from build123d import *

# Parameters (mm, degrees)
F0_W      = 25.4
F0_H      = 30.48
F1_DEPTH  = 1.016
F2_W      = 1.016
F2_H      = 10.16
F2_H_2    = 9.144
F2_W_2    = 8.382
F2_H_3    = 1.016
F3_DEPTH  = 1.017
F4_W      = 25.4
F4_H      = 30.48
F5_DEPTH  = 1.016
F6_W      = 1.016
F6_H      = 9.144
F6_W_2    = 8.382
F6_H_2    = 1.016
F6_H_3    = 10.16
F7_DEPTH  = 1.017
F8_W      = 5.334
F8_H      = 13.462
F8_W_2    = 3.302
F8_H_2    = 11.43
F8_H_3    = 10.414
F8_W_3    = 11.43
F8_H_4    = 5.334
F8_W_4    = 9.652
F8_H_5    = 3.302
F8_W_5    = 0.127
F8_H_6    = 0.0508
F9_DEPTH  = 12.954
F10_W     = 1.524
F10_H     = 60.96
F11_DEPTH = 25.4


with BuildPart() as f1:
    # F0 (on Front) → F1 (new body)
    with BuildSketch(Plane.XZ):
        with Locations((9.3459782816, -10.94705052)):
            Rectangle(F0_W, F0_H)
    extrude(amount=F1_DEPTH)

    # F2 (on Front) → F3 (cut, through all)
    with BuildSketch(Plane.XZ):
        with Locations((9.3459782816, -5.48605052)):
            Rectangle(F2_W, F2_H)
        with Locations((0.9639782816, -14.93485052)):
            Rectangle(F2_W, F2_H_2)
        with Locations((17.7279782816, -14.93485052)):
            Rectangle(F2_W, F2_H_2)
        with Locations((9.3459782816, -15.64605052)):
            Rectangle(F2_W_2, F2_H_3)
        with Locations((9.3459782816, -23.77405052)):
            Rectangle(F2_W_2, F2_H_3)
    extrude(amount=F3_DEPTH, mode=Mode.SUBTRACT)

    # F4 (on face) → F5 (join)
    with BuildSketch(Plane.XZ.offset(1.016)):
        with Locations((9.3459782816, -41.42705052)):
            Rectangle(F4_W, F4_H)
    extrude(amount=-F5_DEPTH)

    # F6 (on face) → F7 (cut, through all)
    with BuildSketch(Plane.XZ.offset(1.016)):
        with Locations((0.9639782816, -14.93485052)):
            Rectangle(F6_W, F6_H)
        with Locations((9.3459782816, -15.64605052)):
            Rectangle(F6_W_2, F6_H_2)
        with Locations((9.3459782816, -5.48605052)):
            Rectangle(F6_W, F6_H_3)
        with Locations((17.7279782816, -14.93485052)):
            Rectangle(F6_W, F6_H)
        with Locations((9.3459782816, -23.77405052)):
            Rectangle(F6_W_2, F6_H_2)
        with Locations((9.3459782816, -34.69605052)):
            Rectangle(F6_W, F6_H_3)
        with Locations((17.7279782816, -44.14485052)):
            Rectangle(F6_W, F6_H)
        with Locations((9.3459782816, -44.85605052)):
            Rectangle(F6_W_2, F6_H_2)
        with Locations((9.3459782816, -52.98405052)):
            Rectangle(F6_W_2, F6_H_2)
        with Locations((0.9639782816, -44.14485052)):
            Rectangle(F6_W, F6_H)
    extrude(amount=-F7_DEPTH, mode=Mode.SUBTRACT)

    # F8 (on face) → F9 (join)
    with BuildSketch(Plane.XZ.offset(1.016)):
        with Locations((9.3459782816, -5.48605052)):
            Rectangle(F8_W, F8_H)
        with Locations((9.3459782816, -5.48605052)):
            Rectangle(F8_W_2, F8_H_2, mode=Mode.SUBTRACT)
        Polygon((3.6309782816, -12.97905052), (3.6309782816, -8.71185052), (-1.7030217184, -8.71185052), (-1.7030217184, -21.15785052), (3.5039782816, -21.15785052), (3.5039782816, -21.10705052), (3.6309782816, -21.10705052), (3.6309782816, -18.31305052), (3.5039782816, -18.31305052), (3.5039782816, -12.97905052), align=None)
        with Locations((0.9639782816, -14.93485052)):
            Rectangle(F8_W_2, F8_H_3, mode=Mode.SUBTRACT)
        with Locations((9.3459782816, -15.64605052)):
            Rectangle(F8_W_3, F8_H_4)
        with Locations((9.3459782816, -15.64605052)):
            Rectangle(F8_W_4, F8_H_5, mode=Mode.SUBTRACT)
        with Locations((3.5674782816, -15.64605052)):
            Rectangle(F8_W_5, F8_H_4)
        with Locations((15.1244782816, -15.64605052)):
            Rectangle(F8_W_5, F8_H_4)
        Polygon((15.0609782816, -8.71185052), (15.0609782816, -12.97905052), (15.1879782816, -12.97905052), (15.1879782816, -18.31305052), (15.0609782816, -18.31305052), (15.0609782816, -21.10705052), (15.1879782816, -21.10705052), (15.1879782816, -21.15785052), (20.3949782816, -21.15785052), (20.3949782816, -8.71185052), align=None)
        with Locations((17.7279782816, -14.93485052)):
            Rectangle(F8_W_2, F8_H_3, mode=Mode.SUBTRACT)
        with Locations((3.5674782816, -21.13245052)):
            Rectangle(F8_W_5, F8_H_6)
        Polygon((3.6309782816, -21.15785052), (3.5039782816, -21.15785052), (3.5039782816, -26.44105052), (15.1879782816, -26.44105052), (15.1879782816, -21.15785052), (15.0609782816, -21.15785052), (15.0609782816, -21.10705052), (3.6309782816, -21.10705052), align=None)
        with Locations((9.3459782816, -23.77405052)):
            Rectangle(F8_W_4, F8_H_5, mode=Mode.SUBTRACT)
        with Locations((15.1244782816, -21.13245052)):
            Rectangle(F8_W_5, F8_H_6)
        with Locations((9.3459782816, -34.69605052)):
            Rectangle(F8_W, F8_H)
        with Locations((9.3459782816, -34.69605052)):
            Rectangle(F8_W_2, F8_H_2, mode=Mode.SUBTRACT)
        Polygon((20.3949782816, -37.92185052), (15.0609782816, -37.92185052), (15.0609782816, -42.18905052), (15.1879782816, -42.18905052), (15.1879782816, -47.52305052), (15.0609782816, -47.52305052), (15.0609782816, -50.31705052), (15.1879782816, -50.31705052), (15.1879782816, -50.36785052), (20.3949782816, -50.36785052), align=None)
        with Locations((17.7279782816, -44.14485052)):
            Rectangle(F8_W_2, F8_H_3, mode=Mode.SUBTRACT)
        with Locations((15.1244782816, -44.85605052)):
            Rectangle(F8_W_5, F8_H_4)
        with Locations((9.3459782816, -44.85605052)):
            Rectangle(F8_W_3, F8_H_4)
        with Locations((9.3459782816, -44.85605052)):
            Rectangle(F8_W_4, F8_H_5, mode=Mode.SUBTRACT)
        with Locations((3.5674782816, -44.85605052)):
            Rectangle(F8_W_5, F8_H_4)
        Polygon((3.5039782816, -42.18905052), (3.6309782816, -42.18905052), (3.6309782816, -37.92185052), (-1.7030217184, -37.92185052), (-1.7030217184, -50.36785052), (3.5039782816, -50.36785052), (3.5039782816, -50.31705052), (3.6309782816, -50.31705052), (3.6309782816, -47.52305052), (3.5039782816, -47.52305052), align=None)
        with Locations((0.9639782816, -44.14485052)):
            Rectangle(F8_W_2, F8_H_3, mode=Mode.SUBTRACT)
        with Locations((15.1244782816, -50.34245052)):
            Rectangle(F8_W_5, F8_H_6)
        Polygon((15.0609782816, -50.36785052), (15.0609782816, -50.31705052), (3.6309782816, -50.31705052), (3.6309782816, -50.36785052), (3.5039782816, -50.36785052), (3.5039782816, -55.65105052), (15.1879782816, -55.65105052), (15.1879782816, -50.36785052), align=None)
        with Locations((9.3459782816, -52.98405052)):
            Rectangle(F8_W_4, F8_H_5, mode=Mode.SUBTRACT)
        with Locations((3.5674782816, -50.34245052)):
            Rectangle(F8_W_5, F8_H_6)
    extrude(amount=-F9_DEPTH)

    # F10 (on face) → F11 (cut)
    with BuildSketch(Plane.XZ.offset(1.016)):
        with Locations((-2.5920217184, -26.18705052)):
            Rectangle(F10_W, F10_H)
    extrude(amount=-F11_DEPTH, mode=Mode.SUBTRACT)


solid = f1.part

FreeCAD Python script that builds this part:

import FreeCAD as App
import Part
import Sketcher

V = App.Vector
Q = App.Units.Quantity

doc = App.newDocument("Part")
params = doc.addObject("Spreadsheet::Sheet", "Params")
for row, (alias, value) in enumerate([
    ("sketch1_width", "1 in"),
    ("sketch1_height", "1.2 in"),
    ("pad1_length", "0.04 in"),
    ("sketch2_height", "0.4 in"),
    ("sketch2_width", "0.04 in"),
    ("sketch2_width2", "0.33 in"),
    ("sketch2_height2", "0.36 in"),
    ("sketch3_width", "1 in"),
    ("sketch3_height", "1.2 in"),
    ("pad2_length", "0.04 in"),
    ("sketch4_height", "0.4 in"),
    ("sketch4_width", "0.04 in"),
    ("sketch4_width2", "0.33 in"),
    ("sketch4_height2", "0.36 in"),
    ("sketch5_width", "0.21 in"),
    ("sketch5_width2", "0.13 in"),
    ("sketch5_width3", "0.46 in"),
    ("sketch5_width4", "0.45 in"),
    ("sketch5_width5", "0.38 in"),
    ("pad3_length", "0.51 in"),
    ("sketch6_height", "2.4 in"),
    ("sketch6_width", "0.06 in"),
    ("pocket3_length", "1 in"),
], start=1):
    params.set(f"A{row}", alias)
    params.set(f"B{row}", "=" + value)
    params.setAlias(f"B{row}", alias)

body = doc.addObject("PartDesign::Body", "Body")

# Sketch on XZ plane
sketch1 = body.newObject("Sketcher::SketchObject", "Sketch")
sketch1.AttachmentSupport = (doc.getObject("XZ_Plane"), [""])
sketch1.MapMode = "FlatFace"
sketch1.addGeometry([
    Part.LineSegment(V(-3.354022, 4.292949, 0), V(-3.354022, -26.187051, 0)),
    Part.LineSegment(V(-3.354022, -26.187051, 0), V(22.045978, -26.187051, 0)),
    Part.LineSegment(V(22.045978, -26.187051, 0), V(22.045978, 4.292949, 0)),
    Part.LineSegment(V(22.045978, 4.292949, 0), V(-3.354022, 4.292949, 0)),
], False)
sketch1.addConstraint([
    Sketcher.Constraint("Coincident", 0, 2, 1, 1),
    Sketcher.Constraint("Coincident", 1, 2, 2, 1),
    Sketcher.Constraint("Coincident", 2, 2, 3, 1),
    Sketcher.Constraint("Coincident", 3, 2, 0, 1),
    Sketcher.Constraint("Vertical", 0),
    Sketcher.Constraint("Horizontal", 1),
    Sketcher.Constraint("Vertical", 2),
    Sketcher.Constraint("Horizontal", 3),
    Sketcher.Constraint("DistanceX", 1, 1, 1, 2, Q("1 in")),
    Sketcher.Constraint("DistanceY", 0, 2, 0, 1, Q("1.2 in")),
    Sketcher.Constraint("DistanceX", 0, 2, -1, 1, 3.354022),
    Sketcher.Constraint("DistanceY", 0, 2, -1, 1, 26.187051),
])
sketch1.setExpression("Constraints[8]", "Params.sketch1_width")
sketch1.setExpression("Constraints[9]", "Params.sketch1_height")
pad1 = body.newObject("PartDesign::Pad", "Pad")
pad1.Profile = sketch1
pad1.setExpression("Length", "Params.pad1_length")

# Sketch on XZ plane
sketch2 = body.newObject("Sketcher::SketchObject", "Sketch001")
sketch2.AttachmentSupport = (doc.getObject("XZ_Plane"), [""])
sketch2.MapMode = "FlatFace"
sketch2.addGeometry([
    Part.LineSegment(V(8.837978, -0.406051, 0), V(8.837978, -10.566051, 0)),  # 0
    Part.LineSegment(V(8.837978, -10.566051, 0), V(9.853978, -10.566051, 0)),  # 1
    Part.LineSegment(V(9.853978, -10.566051, 0), V(9.853978, -0.406051, 0)),  # 2
    Part.LineSegment(V(9.853978, -0.406051, 0), V(8.837978, -0.406051, 0)),  # 3
    Part.LineSegment(V(0.455978, -10.362851, 0), V(0.455978, -19.506851, 0)),  # 4
    Part.LineSegment(V(0.455978, -19.506851, 0), V(1.471978, -19.506851, 0)),  # 5
    Part.LineSegment(V(1.471978, -19.506851, 0), V(1.471978, -10.362851, 0)),  # 6
    Part.LineSegment(V(1.471978, -10.362851, 0), V(0.455978, -10.362851, 0)),  # 7
    Part.LineSegment(V(17.219978, -10.362851, 0), V(17.219978, -19.506851, 0)),  # 8
    Part.LineSegment(V(17.219978, -19.506851, 0), V(18.235978, -19.506851, 0)),  # 9
    Part.LineSegment(V(18.235978, -19.506851, 0), V(18.235978, -10.362851, 0)),  # 10
    Part.LineSegment(V(18.235978, -10.362851, 0), V(17.219978, -10.362851, 0)),  # 11
    Part.LineSegment(V(5.154978, -15.138051, 0), V(5.154978, -16.154051, 0)),  # 12
    Part.LineSegment(V(5.154978, -16.154051, 0), V(13.536978, -16.154051, 0)),  # 13
    Part.LineSegment(V(13.536978, -16.154051, 0), V(13.536978, -15.138051, 0)),  # 14
    Part.LineSegment(V(13.536978, -15.138051, 0), V(5.154978, -15.138051, 0)),  # 15
    Part.LineSegment(V(5.154978, -23.266051, 0), V(5.154978, -24.282051, 0)),  # 16
    Part.LineSegment(V(5.154978, -24.282051, 0), V(13.536978, -24.282051, 0)),  # 17
    Part.LineSegment(V(13.536978, -24.282051, 0), V(13.536978, -23.266051, 0)),  # 18
    Part.LineSegment(V(13.536978, -23.266051, 0), V(5.154978, -23.266051, 0)),  # 19
], False)
sketch2.addConstraint([
    Sketcher.Constraint("Coincident", 0, 2, 1, 1),
    Sketcher.Constraint("Coincident", 1, 2, 2, 1),
    Sketcher.Constraint("Coincident", 2, 2, 3, 1),
    Sketcher.Constraint("Coincident", 3, 2, 0, 1),
    Sketcher.Constraint("Coincident", 4, 2, 5, 1),
    Sketcher.Constraint("Coincident", 5, 2, 6, 1),
    Sketcher.Constraint("Coincident", 6, 2, 7, 1),
    Sketcher.Constraint("Coincident", 7, 2, 4, 1),
    Sketcher.Constraint("Coincident", 8, 2, 9, 1),
    Sketcher.Constraint("Coincident", 9, 2, 10, 1),
    Sketcher.Constraint("Coincident", 10, 2, 11, 1),
    Sketcher.Constraint("Coincident", 11, 2, 8, 1),
    Sketcher.Constraint("Coincident", 12, 2, 13, 1),
    Sketcher.Constraint("Coincident", 13, 2, 14, 1),
    Sketcher.Constraint("Coincident", 14, 2, 15, 1),
    Sketcher.Constraint("Coincident", 15, 2, 12, 1),
    Sketcher.Constraint("Coincident", 16, 2, 17, 1),
    Sketcher.Constraint("Coincident", 17, 2, 18, 1),
    Sketcher.Constraint("Coincident", 18, 2, 19, 1),
    Sketcher.Constraint("Coincident", 19, 2, 16, 1),
    Sketcher.Constraint("Vertical", 0),
    Sketcher.Constraint("Horizontal", 1),
    Sketcher.Constraint("Vertical", 2),
    Sketcher.Constraint("Horizontal", 3),
    Sketcher.Constraint("Vertical", 4),
    Sketcher.Constraint("Horizontal", 5),
    Sketcher.Constraint("Vertical", 6),
    Sketcher.Constraint("Horizontal", 7),
    Sketcher.Constraint("Vertical", 8),
    Sketcher.Constraint("Horizontal", 9),
    Sketcher.Constraint("Vertical", 10),
    Sketcher.Constraint("Horizontal", 11),
    Sketcher.Constraint("Vertical", 12),
    Sketcher.Constraint("Horizontal", 13),
    Sketcher.Constraint("Vertical", 14),
    Sketcher.Constraint("Horizontal", 15),
    Sketcher.Constraint("Vertical", 16),
    Sketcher.Constraint("Horizontal", 17),
    Sketcher.Constraint("Vertical", 18),
    Sketcher.Constraint("Horizontal", 19),
    Sketcher.Constraint("Horizontal", 5, 2, 8, 2),
    Sketcher.Constraint("Horizontal", 7, 2, 10, 2),
    Sketcher.Constraint("Vertical", 15, 2, 16, 2),
    Sketcher.Constraint("Vertical", 14, 2, 17, 2),
    Sketcher.Constraint("Equal", 3, 5),
    Sketcher.Constraint("Equal", 7, 9),
    Sketcher.Constraint("Equal", 11, 12),
    Sketcher.Constraint("Equal", 14, 16),
    Sketcher.Constraint("DistanceY", 0, 2, 0, 1, Q("0.4 in")),
    Sketcher.Constraint("DistanceX", 1, 1, 1, 2, Q("0.04 in")),
    Sketcher.Constraint("DistanceX", 13, 1, 13, 2, Q("0.33 in")),
    Sketcher.Constraint("DistanceY", 4, 2, 4, 1, Q("0.36 in")),
    Sketcher.Constraint("DistanceX", 4, 2, 9, 2, Q("0.7 in")),
    Sketcher.Constraint("DistanceX", 4, 2, 0, 2, Q("0.33 in")),
    Sketcher.Constraint("DistanceY", 12, 2, 0, 2, Q("0.22 in")),
    Sketcher.Constraint("DistanceY", 16, 2, 12, 2, Q("0.32 in")),
    Sketcher.Constraint("DistanceY", 4, 2, 0, 2, Q("0.352 in")),
    Sketcher.Constraint("DistanceX", 5, 2, 12, 2, Q("0.145 in")),
    Sketcher.Constraint("DistanceX", -1, 1, 0, 2, 8.837978),
    Sketcher.Constraint("DistanceY", 0, 2, -1, 1, 10.566051),
])
sketch2.setExpression("Constraints[48]", "Params.sketch2_height")
sketch2.setExpression("Constraints[49]", "Params.sketch2_width")
sketch2.setExpression("Constraints[50]", "Params.sketch2_width2")
sketch2.setExpression("Constraints[51]", "Params.sketch2_height2")
pocket1 = body.newObject("PartDesign::Pocket", "Pocket")
pocket1.Profile = sketch2
pocket1.Type = "ThroughAll"
pocket1.Reversed = True

# Sketch on XZ plane
sketch3 = body.newObject("Sketcher::SketchObject", "Sketch002")
sketch3.AttachmentSupport = (doc.getObject("XZ_Plane"), [""])
sketch3.MapMode = "FlatFace"
sketch3.AttachmentOffset = App.Placement(V(0, 0, 0.04 * 25.4), App.Rotation())
sketch3.addGeometry([
    Part.LineSegment(V(-3.354022, -26.187051, 0), V(-3.354022, -56.667051, 0)),
    Part.LineSegment(V(-3.354022, -56.667051, 0), V(22.045978, -56.667051, 0)),
    Part.LineSegment(V(22.045978, -56.667051, 0), V(22.045978, -26.187051, 0)),
    Part.LineSegment(V(22.045978, -26.187051, 0), V(-3.354022, -26.187051, 0)),
], False)
sketch3.addConstraint([
    Sketcher.Constraint("Coincident", 0, 2, 1, 1),
    Sketcher.Constraint("Coincident", 1, 2, 2, 1),
    Sketcher.Constraint("Coincident", 2, 2, 3, 1),
    Sketcher.Constraint("Coincident", 3, 2, 0, 1),
    Sketcher.Constraint("Vertical", 0),
    Sketcher.Constraint("Horizontal", 1),
    Sketcher.Constraint("Vertical", 2),
    Sketcher.Constraint("Horizontal", 3),
    Sketcher.Constraint("DistanceX", 1, 1, 1, 2, Q("1 in")),
    Sketcher.Constraint("DistanceY", 0, 2, 0, 1, Q("1.2 in")),
    Sketcher.Constraint("DistanceX", 0, 2, -1, 1, 3.354022),
    Sketcher.Constraint("DistanceY", 0, 2, -1, 1, 56.667051),
])
sketch3.setExpression("Constraints[8]", "Params.sketch3_width")
sketch3.setExpression("Constraints[9]", "Params.sketch3_height")
pad2 = body.newObject("PartDesign::Pad", "Pad001")
pad2.Profile = sketch3
pad2.setExpression("Length", "Params.pad2_length")
pad2.Reversed = True

# Sketch on XZ plane
sketch4 = body.newObject("Sketcher::SketchObject", "Sketch003")
sketch4.AttachmentSupport = (doc.getObject("XZ_Plane"), [""])
sketch4.MapMode = "FlatFace"
sketch4.AttachmentOffset = App.Placement(V(0, 0, 0.04 * 25.4), App.Rotation())
sketch4.addGeometry([
    Part.LineSegment(V(0.455978, -10.362851, 0), V(0.455978, -19.506851, 0)),  # 0
    Part.LineSegment(V(0.455978, -19.506851, 0), V(1.471978, -19.506851, 0)),  # 1
    Part.LineSegment(V(1.471978, -19.506851, 0), V(1.471978, -10.362851, 0)),  # 2
    Part.LineSegment(V(1.471978, -10.362851, 0), V(0.455978, -10.362851, 0)),  # 3
    Part.LineSegment(V(5.154978, -15.138051, 0), V(5.154978, -16.154051, 0)),  # 4
    Part.LineSegment(V(5.154978, -16.154051, 0), V(13.536978, -16.154051, 0)),  # 5
    Part.LineSegment(V(13.536978, -16.154051, 0), V(13.536978, -15.138051, 0)),  # 6
    Part.LineSegment(V(13.536978, -15.138051, 0), V(5.154978, -15.138051, 0)),  # 7
    Part.LineSegment(V(8.837978, -0.406051, 0), V(8.837978, -10.566051, 0)),  # 8
    Part.LineSegment(V(8.837978, -10.566051, 0), V(9.853978, -10.566051, 0)),  # 9
    Part.LineSegment(V(9.853978, -10.566051, 0), V(9.853978, -0.406051, 0)),  # 10
    Part.LineSegment(V(9.853978, -0.406051, 0), V(8.837978, -0.406051, 0)),  # 11
    Part.LineSegment(V(17.219978, -10.362851, 0), V(17.219978, -19.506851, 0)),  # 12
    Part.LineSegment(V(17.219978, -19.506851, 0), V(18.235978, -19.506851, 0)),  # 13
    Part.LineSegment(V(18.235978, -19.506851, 0), V(18.235978, -10.362851, 0)),  # 14
    Part.LineSegment(V(18.235978, -10.362851, 0), V(17.219978, -10.362851, 0)),  # 15
    Part.LineSegment(V(5.154978, -23.266051, 0), V(5.154978, -24.282051, 0)),  # 16
    Part.LineSegment(V(5.154978, -24.282051, 0), V(13.536978, -24.282051, 0)),  # 17
    Part.LineSegment(V(13.536978, -24.282051, 0), V(13.536978, -23.266051, 0)),  # 18
    Part.LineSegment(V(13.536978, -23.266051, 0), V(5.154978, -23.266051, 0)),  # 19
    Part.LineSegment(V(8.837978, -29.616051, 0), V(8.837978, -39.776051, 0)),  # 20
    Part.LineSegment(V(8.837978, -39.776051, 0), V(9.853978, -39.776051, 0)),  # 21
    Part.LineSegment(V(9.853978, -39.776051, 0), V(9.853978, -29.616051, 0)),  # 22
    Part.LineSegment(V(9.853978, -29.616051, 0), V(8.837978, -29.616051, 0)),  # 23
    Part.LineSegment(V(17.219978, -39.572851, 0), V(17.219978, -48.716851, 0)),  # 24
    Part.LineSegment(V(17.219978, -48.716851, 0), V(18.235978, -48.716851, 0)),  # 25
    Part.LineSegment(V(18.235978, -48.716851, 0), V(18.235978, -39.572851, 0)),  # 26
    Part.LineSegment(V(18.235978, -39.572851, 0), V(17.219978, -39.572851, 0)),  # 27
    Part.LineSegment(V(5.154978, -44.348051, 0), V(5.154978, -45.364051, 0)),  # 28
    Part.LineSegment(V(5.154978, -45.364051, 0), V(13.536978, -45.364051, 0)),  # 29
    Part.LineSegment(V(13.536978, -45.364051, 0), V(13.536978, -44.348051, 0)),  # 30
    Part.LineSegment(V(13.536978, -44.348051, 0), V(5.154978, -44.348051, 0)),  # 31
    Part.LineSegment(V(5.154978, -52.476051, 0), V(5.154978, -53.492051, 0)),  # 32
    Part.LineSegment(V(5.154978, -53.492051, 0), V(13.536978, -53.492051, 0)),  # 33
    Part.LineSegment(V(13.536978, -53.492051, 0), V(13.536978, -52.476051, 0)),  # 34
    Part.LineSegment(V(13.536978, -52.476051, 0), V(5.154978, -52.476051, 0)),  # 35
    Part.LineSegment(V(0.455978, -39.572851, 0), V(0.455978, -48.716851, 0)),  # 36
    Part.LineSegment(V(0.455978, -48.716851, 0), V(1.471978, -48.716851, 0)),  # 37
    Part.LineSegment(V(1.471978, -48.716851, 0), V(1.471978, -39.572851, 0)),  # 38
    Part.LineSegment(V(1.471978, -39.572851, 0), V(0.455978, -39.572851, 0)),  # 39
], False)
sketch4.addConstraint([
    Sketcher.Constraint("Coincident", 0, 2, 1, 1),
    Sketcher.Constraint("Coincident", 1, 2, 2, 1),
    Sketcher.Constraint("Coincident", 2, 2, 3, 1),
    Sketcher.Constraint("Coincident", 3, 2, 0, 1),
    Sketcher.Constraint("Coincident", 4, 2, 5, 1),
    Sketcher.Constraint("Coincident", 5, 2, 6, 1),
    Sketcher.Constraint("Coincident", 6, 2, 7, 1),
    Sketcher.Constraint("Coincident", 7, 2, 4, 1),
    Sketcher.Constraint("Coincident", 8, 2, 9, 1),
    Sketcher.Constraint("Coincident", 9, 2, 10, 1),
    Sketcher.Constraint("Coincident", 10, 2, 11, 1),
    Sketcher.Constraint("Coincident", 11, 2, 8, 1),
    Sketcher.Constraint("Coincident", 12, 2, 13, 1),
    Sketcher.Constraint("Coincident", 13, 2, 14, 1),
    Sketcher.Constraint("Coincident", 14, 2, 15, 1),
    Sketcher.Constraint("Coincident", 15, 2, 12, 1),
    Sketcher.Constraint("Coincident", 16, 2, 17, 1),
    Sketcher.Constraint("Coincident", 17, 2, 18, 1),
    Sketcher.Constraint("Coincident", 18, 2, 19, 1),
    Sketcher.Constraint("Coincident", 19, 2, 16, 1),
    Sketcher.Constraint("Coincident", 20, 2, 21, 1),
    Sketcher.Constraint("Coincident", 21, 2, 22, 1),
    Sketcher.Constraint("Coincident", 22, 2, 23, 1),
    Sketcher.Constraint("Coincident", 23, 2, 20, 1),
    Sketcher.Constraint("Coincident", 24, 2, 25, 1),
    Sketcher.Constraint("Coincident", 25, 2, 26, 1),
    Sketcher.Constraint("Coincident", 26, 2, 27, 1),
    Sketcher.Constraint("Coincident", 27, 2, 24, 1),
    Sketcher.Constraint("Coincident", 28, 2, 29, 1),
    Sketcher.Constraint("Coincident", 29, 2, 30, 1),
    Sketcher.Constraint("Coincident", 30, 2, 31, 1),
    Sketcher.Constraint("Coincident", 31, 2, 28, 1),
    Sketcher.Constraint("Coincident", 32, 2, 33, 1),
    Sketcher.Constraint("Coincident", 33, 2, 34, 1),
    Sketcher.Constraint("Coincident", 34, 2, 35, 1),
    Sketcher.Constraint("Coincident", 35, 2, 32, 1),
    Sketcher.Constraint("Coincident", 36, 2, 37, 1),
    Sketcher.Constraint("Coincident", 37, 2, 38, 1),
    Sketcher.Constraint("Coincident", 38, 2, 39, 1),
    Sketcher.Constraint("Coincident", 39, 2, 36, 1),
    Sketcher.Constraint("Vertical", 0),
    Sketcher.Constraint("Horizontal", 1),
    Sketcher.Constraint("Vertical", 2),
    Sketcher.Constraint("Horizontal", 3),
    Sketcher.Constraint("Vertical", 4),
    Sketcher.Constraint("Horizontal", 5),
    Sketcher.Constraint("Vertical", 6),
    Sketcher.Constraint("Horizontal", 7),
    Sketcher.Constraint("Vertical", 8),
    Sketcher.Constraint("Horizontal", 9),
    Sketcher.Constraint("Vertical", 10),
    Sketcher.Constraint("Horizontal", 11),
    Sketcher.Constraint("Vertical", 12),
    Sketcher.Constraint("Horizontal", 13),
    Sketcher.Constraint("Vertical", 14),
    Sketcher.Constraint("Horizontal", 15),
    Sketcher.Constraint("Vertical", 16),
    Sketcher.Constraint("Horizontal", 17),
    Sketcher.Constraint("Vertical", 18),
    Sketcher.Constraint("Horizontal", 19),
    Sketcher.Constraint("Vertical", 20),
    Sketcher.Constraint("Horizontal", 21),
    Sketcher.Constraint("Vertical", 22),
    Sketcher.Constraint("Horizontal", 23),
    Sketcher.Constraint("Vertical", 24),
    Sketcher.Constraint("Horizontal", 25),
    Sketcher.Constraint("Vertical", 26),
    Sketcher.Constraint("Horizontal", 27),
    Sketcher.Constraint("Vertical", 28),
    Sketcher.Constraint("Horizontal", 29),
    Sketcher.Constraint("Vertical", 30),
    Sketcher.Constraint("Horizontal", 31),
    Sketcher.Constraint("Vertical", 32),
    Sketcher.Constraint("Horizontal", 33),
    Sketcher.Constraint("Vertical", 34),
    Sketcher.Constraint("Horizontal", 35),
    Sketcher.Constraint("Vertical", 36),
    Sketcher.Constraint("Horizontal", 37),
    Sketcher.Constraint("Vertical", 38),
    Sketcher.Constraint("Horizontal", 39),
    Sketcher.Constraint("Horizontal", 1, 2, 12, 2),
    Sketcher.Constraint("Horizontal", 3, 2, 14, 2),
    Sketcher.Constraint("Horizontal", 25, 2, 36, 2),
    Sketcher.Constraint("Horizontal", 27, 2, 38, 2),
    Sketcher.Constraint("Vertical", 7, 2, 16, 2),
    Sketcher.Constraint("Vertical", 6, 2, 17, 2),
    Sketcher.Constraint("Vertical", 11, 2, 20, 2),
    Sketcher.Constraint("Vertical", 10, 2, 21, 2),
    Sketcher.Constraint("Vertical", 15, 2, 24, 2),
    Sketcher.Constraint("Vertical", 14, 2, 25, 2),
    Sketcher.Constraint("Vertical", 19, 2, 28, 2),
    Sketcher.Constraint("Vertical", 18, 2, 29, 2),
    Sketcher.Constraint("Vertical", 31, 2, 32, 2),
    Sketcher.Constraint("Vertical", 30, 2, 33, 2),
    Sketcher.Constraint("Vertical", 3, 2, 36, 2),
    Sketcher.Constraint("Vertical", 2, 2, 37, 2),
    Sketcher.Constraint("Equal", 3, 9),
    Sketcher.Constraint("Equal", 11, 13),
    Sketcher.Constraint("Equal", 39, 4),
    Sketcher.Constraint("Equal", 6, 16),
    Sketcher.Constraint("Equal", 10, 20),
    Sketcher.Constraint("Equal", 14, 24),
    Sketcher.Constraint("Equal", 18, 28),
    Sketcher.Constraint("Equal", 30, 32),
    Sketcher.Constraint("DistanceY", 8, 2, 8, 1, Q("0.4 in")),
    Sketcher.Constraint("DistanceX", 1, 1, 1, 2, Q("0.04 in")),
    Sketcher.Constraint("DistanceX", 5, 1, 5, 2, Q("0.33 in")),
    Sketcher.Constraint("DistanceY", 0, 2, 0, 1, Q("0.36 in")),
    Sketcher.Constraint("DistanceY", 7, 2, 8, 2, Q("0.18 in")),
    Sketcher.Constraint("DistanceX", 2, 2, 8, 2, Q("0.29 in")),
    Sketcher.Constraint("DistanceX", 9, 2, 12, 2, Q("0.29 in")),
    Sketcher.Constraint("DistanceY", 16, 2, 4, 2, Q("0.32 in")),
    Sketcher.Constraint("DistanceY", 20, 2, 16, 2, Q("0.61 in")),
    Sketcher.Constraint("DistanceY", 28, 2, 20, 2, Q("0.22 in")),
    Sketcher.Constraint("DistanceY", 32, 2, 28, 2, Q("0.32 in")),
    Sketcher.Constraint("DistanceX", 1, 2, 4, 2, Q("0.145 in")),
    Sketcher.Constraint("DistanceY", 1, 2, 4, 2, Q("0.132 in")),
    Sketcher.Constraint("DistanceY", 24, 2, 21, 2, Q("0.352 in")),
    Sketcher.Constraint("DistanceX", -1, 1, 0, 2, 0.455978),
    Sketcher.Constraint("DistanceY", 0, 2, -1, 1, 19.506851),
])
sketch4.setExpression("Constraints[104]", "Params.sketch4_height")
sketch4.setExpression("Constraints[105]", "Params.sketch4_width")
sketch4.setExpression("Constraints[106]", "Params.sketch4_width2")
sketch4.setExpression("Constraints[107]", "Params.sketch4_height2")
pocket2 = body.newObject("PartDesign::Pocket", "Pocket001")
pocket2.Profile = sketch4
pocket2.Type = "ThroughAll"

# Sketch on XZ plane
sketch5 = body.newObject("Sketcher::SketchObject", "Sketch004")
sketch5.AttachmentSupport = (doc.getObject("XZ_Plane"), [""])
sketch5.MapMode = "FlatFace"
sketch5.AttachmentOffset = App.Placement(V(0, 0, 0.04 * 25.4), App.Rotation())
sketch5.addGeometry([
    Part.LineSegment(V(6.678978, 1.244949, 0), V(6.678978, -12.217051, 0)),  # 0
    Part.LineSegment(V(6.678978, -12.217051, 0), V(12.012978, -12.217051, 0)),  # 1
    Part.LineSegment(V(12.012978, -12.217051, 0), V(12.012978, 1.244949, 0)),  # 2
    Part.LineSegment(V(12.012978, 1.244949, 0), V(6.678978, 1.244949, 0)),  # 3
    Part.LineSegment(V(10.996978, -11.201051, 0), V(7.694978, -11.201051, 0)),  # 4
    Part.LineSegment(V(7.694978, -11.201051, 0), V(7.694978, 0.228949, 0)),  # 5
    Part.LineSegment(V(7.694978, 0.228949, 0), V(10.996978, 0.228949, 0)),  # 6
    Part.LineSegment(V(10.996978, 0.228949, 0), V(10.996978, -11.201051, 0)),  # 7
    Part.LineSegment(V(3.503978, -26.441051, 0), V(15.187978, -26.441051, 0)),  # 8
    Part.LineSegment(V(15.187978, -26.441051, 0), V(15.187978, -21.157851, 0)),  # 9
    Part.LineSegment(V(15.187978, -21.157851, 0), V(20.394978, -21.157851, 0)),  # 10
    Part.LineSegment(V(20.394978, -21.157851, 0), V(20.394978, -8.711851, 0)),  # 11
    Part.LineSegment(V(20.394978, -8.711851, 0), V(15.060978, -8.711851, 0)),  # 12
    Part.LineSegment(V(15.060978, -8.711851, 0), V(15.060978, -12.979051, 0)),  # 13
    Part.LineSegment(V(15.060978, -12.979051, 0), V(3.630978, -12.979051, 0)),  # 14
    Part.LineSegment(V(3.630978, -12.979051, 0), V(3.630978, -8.711851, 0)),  # 15
    Part.LineSegment(V(3.630978, -8.711851, 0), V(-1.703022, -8.711851, 0)),  # 16
    Part.LineSegment(V(-1.703022, -8.711851, 0), V(-1.703022, -21.157851, 0)),  # 17
    Part.LineSegment(V(-1.703022, -21.157851, 0), V(3.503978, -21.157851, 0)),  # 18
    Part.LineSegment(V(3.503978, -21.157851, 0), V(3.503978, -26.441051, 0)),  # 19
    Part.LineSegment(V(14.171978, -25.425051, 0), V(4.519978, -25.425051, 0)),  # 20
    Part.LineSegment(V(4.519978, -25.425051, 0), V(4.519978, -22.123051, 0)),  # 21
    Part.LineSegment(V(4.519978, -22.123051, 0), V(14.171978, -22.123051, 0)),  # 22
    Part.LineSegment(V(14.171978, -22.123051, 0), V(14.171978, -25.425051, 0)),  # 23
    Part.LineSegment(V(15.060978, -18.313051, 0), V(15.060978, -21.107051, 0)),  # 24
    Part.LineSegment(V(15.060978, -21.107051, 0), V(3.630978, -21.107051, 0)),  # 25
    Part.LineSegment(V(3.630978, -21.107051, 0), V(3.630978, -18.313051, 0)),  # 26
    Part.LineSegment(V(3.630978, -18.313051, 0), V(15.060978, -18.313051, 0)),  # 27
    Part.LineSegment(V(2.614978, -20.141851, 0), V(-0.687022, -20.141851, 0)),  # 28
    Part.LineSegment(V(-0.687022, -20.141851, 0), V(-0.687022, -9.727851, 0)),  # 29
    Part.LineSegment(V(-0.687022, -9.727851, 0), V(2.614978, -9.727851, 0)),  # 30
    Part.LineSegment(V(2.614978, -9.727851, 0), V(2.614978, -20.141851, 0)),  # 31
    Part.LineSegment(V(4.519978, -17.297051, 0), V(4.519978, -13.995051, 0)),  # 32
    Part.LineSegment(V(4.519978, -13.995051, 0), V(14.171978, -13.995051, 0)),  # 33
    Part.LineSegment(V(14.171978, -13.995051, 0), V(14.171978, -17.297051, 0)),  # 34
    Part.LineSegment(V(14.171978, -17.297051, 0), V(4.519978, -17.297051, 0)),  # 35
    Part.LineSegment(V(19.378978, -20.141851, 0), V(16.076978, -20.141851, 0)),  # 36
    Part.LineSegment(V(16.076978, -20.141851, 0), V(16.076978, -9.727851, 0)),  # 37
    Part.LineSegment(V(16.076978, -9.727851, 0), V(19.378978, -9.727851, 0)),  # 38
    Part.LineSegment(V(19.378978, -9.727851, 0), V(19.378978, -20.141851, 0)),  # 39
    Part.LineSegment(V(6.678978, -27.965051, 0), V(6.678978, -41.427051, 0)),  # 40
    Part.LineSegment(V(6.678978, -41.427051, 0), V(12.012978, -41.427051, 0)),  # 41
    Part.LineSegment(V(12.012978, -41.427051, 0), V(12.012978, -27.965051, 0)),  # 42
    Part.LineSegment(V(12.012978, -27.965051, 0), V(6.678978, -27.965051, 0)),  # 43
    Part.LineSegment(V(10.996978, -40.411051, 0), V(7.694978, -40.411051, 0)),  # 44
    Part.LineSegment(V(7.694978, -40.411051, 0), V(7.694978, -28.981051, 0)),  # 45
    Part.LineSegment(V(7.694978, -28.981051, 0), V(10.996978, -28.981051, 0)),  # 46
    Part.LineSegment(V(10.996978, -28.981051, 0), V(10.996978, -40.411051, 0)),  # 47
    Part.LineSegment(V(-1.703022, -37.921851, 0), V(-1.703022, -50.367851, 0)),  # 48
    Part.LineSegment(V(-1.703022, -50.367851, 0), V(3.503978, -50.367851, 0)),  # 49
    Part.LineSegment(V(3.503978, -50.367851, 0), V(3.503978, -55.651051, 0)),  # 50
    Part.LineSegment(V(3.503978, -55.651051, 0), V(15.187978, -55.651051, 0)),  # 51
    Part.LineSegment(V(15.187978, -55.651051, 0), V(15.187978, -50.367851, 0)),  # 52
    Part.LineSegment(V(15.187978, -50.367851, 0), V(20.394978, -50.367851, 0)),  # 53
    Part.LineSegment(V(20.394978, -50.367851, 0), V(20.394978, -37.921851, 0)),  # 54
    Part.LineSegment(V(20.394978, -37.921851, 0), V(15.060978, -37.921851, 0)),  # 55
    Part.LineSegment(V(15.060978, -37.921851, 0), V(15.060978, -42.189051, 0)),  # 56
    Part.LineSegment(V(15.060978, -42.189051, 0), V(3.630978, -42.189051, 0)),  # 57
    Part.LineSegment(V(3.630978, -42.189051, 0), V(3.630978, -37.921851, 0)),  # 58
    Part.LineSegment(V(3.630978, -37.921851, 0), V(-1.703022, -37.921851, 0)),  # 59
    Part.LineSegment(V(14.171978, -54.635051, 0), V(4.519978, -54.635051, 0)),  # 60
    Part.LineSegment(V(4.519978, -54.635051, 0), V(4.519978, -51.333051, 0)),  # 61
    Part.LineSegment(V(4.519978, -51.333051, 0), V(14.171978, -51.333051, 0)),  # 62
    Part.LineSegment(V(14.171978, -51.333051, 0), V(14.171978, -54.635051, 0)),  # 63
    Part.LineSegment(V(15.060978, -50.317051, 0), V(3.630978, -50.317051, 0)),  # 64
    Part.LineSegment(V(3.630978, -50.317051, 0), V(3.630978, -47.523051, 0)),  # 65
    Part.LineSegment(V(3.630978, -47.523051, 0), V(15.060978, -47.523051, 0)),  # 66
    Part.LineSegment(V(15.060978, -47.523051, 0), V(15.060978, -50.317051, 0)),  # 67
    Part.LineSegment(V(2.614978, -49.351851, 0), V(-0.687022, -49.351851, 0)),  # 68
    Part.LineSegment(V(-0.687022, -49.351851, 0), V(-0.687022, -38.937851, 0)),  # 69
    Part.LineSegment(V(-0.687022, -38.937851, 0), V(2.614978, -38.937851, 0)),  # 70
    Part.LineSegment(V(2.614978, -38.937851, 0), V(2.614978, -49.351851, 0)),  # 71
    Part.LineSegment(V(14.171978, -46.507051, 0), V(4.519978, -46.507051, 0)),  # 72
    Part.LineSegment(V(4.519978, -46.507051, 0), V(4.519978, -43.205051, 0)),  # 73
    Part.LineSegment(V(4.519978, -43.205051, 0), V(14.171978, -43.205051, 0)),  # 74
    Part.LineSegment(V(14.171978, -43.205051, 0), V(14.171978, -46.507051, 0)),  # 75
    Part.LineSegment(V(19.378978, -49.351851, 0), V(16.076978, -49.351851, 0)),  # 76
    Part.LineSegment(V(16.076978, -49.351851, 0), V(16.076978, -38.937851, 0)),  # 77
    Part.LineSegment(V(16.076978, -38.937851, 0), V(19.378978, -38.937851, 0)),  # 78
    Part.LineSegment(V(19.378978, -38.937851, 0), V(19.378978, -49.351851, 0)),  # 79
], False)
sketch5.addConstraint([
    Sketcher.Constraint("Coincident", 0, 2, 1, 1),
    Sketcher.Constraint("Coincident", 1, 2, 2, 1),
    Sketcher.Constraint("Coincident", 2, 2, 3, 1),
    Sketcher.Constraint("Coincident", 3, 2, 0, 1),
    Sketcher.Constraint("Coincident", 4, 2, 5, 1),
    Sketcher.Constraint("Coincident", 5, 2, 6, 1),
    Sketcher.Constraint("Coincident", 6, 2, 7, 1),
    Sketcher.Constraint("Coincident", 7, 2, 4, 1),
    Sketcher.Constraint("Coincident", 8, 2, 9, 1),
    Sketcher.Constraint("Coincident", 9, 2, 10, 1),
    Sketcher.Constraint("Coincident", 10, 2, 11, 1),
    Sketcher.Constraint("Coincident", 11, 2, 12, 1),
    Sketcher.Constraint("Coincident", 12, 2, 13, 1),
    Sketcher.Constraint("Coincident", 13, 2, 14, 1),
    Sketcher.Constraint("Coincident", 14, 2, 15, 1),
    Sketcher.Constraint("Coincident", 15, 2, 16, 1),
    Sketcher.Constraint("Coincident", 16, 2, 17, 1),
    Sketcher.Constraint("Coincident", 17, 2, 18, 1),
    Sketcher.Constraint("Coincident", 18, 2, 19, 1),
    Sketcher.Constraint("Coincident", 19, 2, 8, 1),
    Sketcher.Constraint("Coincident", 20, 2, 21, 1),
    Sketcher.Constraint("Coincident", 21, 2, 22, 1),
    Sketcher.Constraint("Coincident", 22, 2, 23, 1),
    Sketcher.Constraint("Coincident", 23, 2, 20, 1),
    Sketcher.Constraint("Coincident", 24, 2, 25, 1),
    Sketcher.Constraint("Coincident", 25, 2, 26, 1),
    Sketcher.Constraint("Coincident", 26, 2, 27, 1),
    Sketcher.Constraint("Coincident", 27, 2, 24, 1),
    Sketcher.Constraint("Coincident", 28, 2, 29, 1),
    Sketcher.Constraint("Coincident", 29, 2, 30, 1),
    Sketcher.Constraint("Coincident", 30, 2, 31, 1),
    Sketcher.Constraint("Coincident", 31, 2, 28, 1),
    Sketcher.Constraint("Coincident", 32, 2, 33, 1),
    Sketcher.Constraint("Coincident", 33, 2, 34, 1),
    Sketcher.Constraint("Coincident", 34, 2, 35, 1),
    Sketcher.Constraint("Coincident", 35, 2, 32, 1),
    Sketcher.Constraint("Coincident", 36, 2, 37, 1),
    Sketcher.Constraint("Coincident", 37, 2, 38, 1),
    Sketcher.Constraint("Coincident", 38, 2, 39, 1),
    Sketcher.Constraint("Coincident", 39, 2, 36, 1),
    Sketcher.Constraint("Coincident", 40, 2, 41, 1),
    Sketcher.Constraint("Coincident", 41, 2, 42, 1),
    Sketcher.Constraint("Coincident", 42, 2, 43, 1),
    Sketcher.Constraint("Coincident", 43, 2, 40, 1),
    Sketcher.Constraint("Coincident", 44, 2, 45, 1),
    Sketcher.Constraint("Coincident", 45, 2, 46, 1),
    Sketcher.Constraint("Coincident", 46, 2, 47, 1),
    Sketcher.Constraint("Coincident", 47, 2, 44, 1),
    Sketcher.Constraint("Coincident", 48, 2, 49, 1),
    Sketcher.Constraint("Coincident", 49, 2, 50, 1),
    Sketcher.Constraint("Coincident", 50, 2, 51, 1),
    Sketcher.Constraint("Coincident", 51, 2, 52, 1),
    Sketcher.Constraint("Coincident", 52, 2, 53, 1),
    Sketcher.Constraint("Coincident", 53, 2, 54, 1),
    Sketcher.Constraint("Coincident", 54, 2, 55, 1),
    Sketcher.Constraint("Coincident", 55, 2, 56, 1),
    Sketcher.Constraint("Coincident", 56, 2, 57, 1),
    Sketcher.Constraint("Coincident", 57, 2, 58, 1),
    Sketcher.Constraint("Coincident", 58, 2, 59, 1),
    Sketcher.Constraint("Coincident", 59, 2, 48, 1),
    Sketcher.Constraint("Coincident", 60, 2, 61, 1),
    Sketcher.Constraint("Coincident", 61, 2, 62, 1),
    Sketcher.Constraint("Coincident", 62, 2, 63, 1),
    Sketcher.Constraint("Coincident", 63, 2, 60, 1),
    Sketcher.Constraint("Coincident", 64, 2, 65, 1),
    Sketcher.Constraint("Coincident", 65, 2, 66, 1),
    Sketcher.Constraint("Coincident", 66, 2, 67, 1),
    Sketcher.Constraint("Coincident", 67, 2, 64, 1),
    Sketcher.Constraint("Coincident", 68, 2, 69, 1),
    Sketcher.Constraint("Coincident", 69, 2, 70, 1),
    Sketcher.Constraint("Coincident", 70, 2, 71, 1),
    Sketcher.Constraint("Coincident", 71, 2, 68, 1),
    Sketcher.Constraint("Coincident", 72, 2, 73, 1),
    Sketcher.Constraint("Coincident", 73, 2, 74, 1),
    Sketcher.Constraint("Coincident", 74, 2, 75, 1),
    Sketcher.Constraint("Coincident", 75, 2, 72, 1),
    Sketcher.Constraint("Coincident", 76, 2, 77, 1),
    Sketcher.Constraint("Coincident", 77, 2, 78, 1),
    Sketcher.Constraint("Coincident", 78, 2, 79, 1),
    Sketcher.Constraint("Coincident", 79, 2, 76, 1),
    Sketcher.Constraint("Vertical", 0),
    Sketcher.Constraint("Horizontal", 1),
    Sketcher.Constraint("Vertical", 2),
    Sketcher.Constraint("Horizontal", 3),
    Sketcher.Constraint("Horizontal", 4),
    Sketcher.Constraint("Vertical", 5),
    Sketcher.Constraint("Horizontal", 6),
    Sketcher.Constraint("Vertical", 7),
    Sketcher.Constraint("Horizontal", 8),
    Sketcher.Constraint("Vertical", 9),
    Sketcher.Constraint("Horizontal", 10),
    Sketcher.Constraint("Vertical", 11),
    Sketcher.Constraint("Horizontal", 12),
    Sketcher.Constraint("Vertical", 13),
    Sketcher.Constraint("Horizontal", 14),
    Sketcher.Constraint("Vertical", 15),
    Sketcher.Constraint("Horizontal", 16),
    Sketcher.Constraint("Vertical", 17),
    Sketcher.Constraint("Horizontal", 18),
    Sketcher.Constraint("Vertical", 19),
    Sketcher.Constraint("Horizontal", 20),
    Sketcher.Constraint("Vertical", 21),
    Sketcher.Constraint("Horizontal", 22),
    Sketcher.Constraint("Vertical", 23),
    Sketcher.Constraint("Vertical", 24),
    Sketcher.Constraint("Horizontal", 25),
    Sketcher.Constraint("Vertical", 26),
    Sketcher.Constraint("Horizontal", 27),
    Sketcher.Constraint("Horizontal", 28),
    Sketcher.Constraint("Vertical", 29),
    Sketcher.Constraint("Horizontal", 30),
    Sketcher.Constraint("Vertical", 31),
    Sketcher.Constraint("Vertical", 32),
    Sketcher.Constraint("Horizontal", 33),
    Sketcher.Constraint("Vertical", 34),
    Sketcher.Constraint("Horizontal", 35),
    Sketcher.Constraint("Horizontal", 36),
    Sketcher.Constraint("Vertical", 37),
    Sketcher.Constraint("Horizontal", 38),
    Sketcher.Constraint("Vertical", 39),
    Sketcher.Constraint("Vertical", 40),
    Sketcher.Constraint("Horizontal", 41),
    Sketcher.Constraint("Vertical", 42),
    Sketcher.Constraint("Horizontal", 43),
    Sketcher.Constraint("Horizontal", 44),
    Sketcher.Constraint("Vertical", 45),
    Sketcher.Constraint("Horizontal", 46),
    Sketcher.Constraint("Vertical", 47),
    Sketcher.Constraint("Vertical", 48),
    Sketcher.Constraint("Horizontal", 49),
    Sketcher.Constraint("Vertical", 50),
    Sketcher.Constraint("Horizontal", 51),
    Sketcher.Constraint("Vertical", 52),
    Sketcher.Constraint("Horizontal", 53),
    Sketcher.Constraint("Vertical", 54),
    Sketcher.Constraint("Horizontal", 55),
    Sketcher.Constraint("Vertical", 56),
    Sketcher.Constraint("Horizontal", 57),
    Sketcher.Constraint("Vertical", 58),
    Sketcher.Constraint("Horizontal", 59),
    Sketcher.Constraint("Horizontal", 60),
    Sketcher.Constraint("Vertical", 61),
    Sketcher.Constraint("Horizontal", 62),
    Sketcher.Constraint("Vertical", 63),
    Sketcher.Constraint("Horizontal", 64),
    Sketcher.Constraint("Vertical", 65),
    Sketcher.Constraint("Horizontal", 66),
    Sketcher.Constraint("Vertical", 67),
    Sketcher.Constraint("Horizontal", 68),
    Sketcher.Constraint("Vertical", 69),
    Sketcher.Constraint("Horizontal", 70),
    Sketcher.Constraint("Vertical", 71),
    Sketcher.Constraint("Horizontal", 72),
    Sketcher.Constraint("Vertical", 73),
    Sketcher.Constraint("Horizontal", 74),
    Sketcher.Constraint("Vertical", 75),
    Sketcher.Constraint("Horizontal", 76),
    Sketcher.Constraint("Vertical", 77),
    Sketcher.Constraint("Horizontal", 78),
    Sketcher.Constraint("Vertical", 79),
    Sketcher.Constraint("Horizontal", 12, 2, 15, 2),
    Sketcher.Constraint("Horizontal", 10, 2, 17, 2),
    Sketcher.Constraint("Horizontal", 31, 2, 36, 2),
    Sketcher.Constraint("Horizontal", 30, 2, 37, 2),
    Sketcher.Constraint("Horizontal", 49, 2, 52, 2),
    Sketcher.Constraint("Horizontal", 55, 2, 58, 2),
    Sketcher.Constraint("Horizontal", 71, 2, 76, 2),
    Sketcher.Constraint("Horizontal", 70, 2, 77, 2),
    Sketcher.Constraint("Vertical", 13, 2, 24, 2),
    Sketcher.Constraint("Vertical", 15, 2, 25, 2),
    Sketcher.Constraint("Vertical", 21, 2, 32, 2),
    Sketcher.Constraint("Vertical", 23, 2, 33, 2),
    Sketcher.Constraint("Vertical", 3, 2, 40, 2),
    Sketcher.Constraint("Vertical", 2, 2, 41, 2),
    Sketcher.Constraint("Vertical", 5, 2, 44, 2),
    Sketcher.Constraint("Vertical", 7, 2, 46, 2),
    Sketcher.Constraint("Vertical", 17, 2, 48, 2),
    Sketcher.Constraint("Vertical", 19, 2, 49, 2),
    Sketcher.Constraint("Vertical", 9, 2, 51, 2),
    Sketcher.Constraint("Vertical", 11, 2, 53, 2),
    Sketcher.Constraint("Vertical", 27, 2, 55, 2),
    Sketcher.Constraint("Vertical", 26, 2, 57, 2),
    Sketcher.Constraint("Vertical", 35, 2, 60, 2),
    Sketcher.Constraint("Vertical", 34, 2, 62, 2),
    Sketcher.Constraint("Vertical", 58, 2, 64, 2),
    Sketcher.Constraint("Vertical", 56, 2, 66, 2),
    Sketcher.Constraint("Vertical", 29, 2, 68, 2),
    Sketcher.Constraint("Vertical", 31, 2, 70, 2),
    Sketcher.Constraint("Vertical", 61, 2, 72, 2),
    Sketcher.Constraint("Vertical", 63, 2, 74, 2),
    Sketcher.Constraint("Vertical", 37, 2, 76, 2),
    Sketcher.Constraint("Vertical", 39, 2, 78, 2),
    Sketcher.Constraint("Equal", 3, 12),
    Sketcher.Constraint("Equal", 12, 16),
    Sketcher.Constraint("Equal", 10, 18),
    Sketcher.Constraint("Equal", 6, 28),
    Sketcher.Constraint("Equal", 30, 36),
    Sketcher.Constraint("Equal", 66, 5),
    Sketcher.Constraint("Equal", 78, 21),
    Sketcher.Constraint("Equal", 23, 32),
    Sketcher.Constraint("Equal", 2, 40),
    Sketcher.Constraint("Equal", 7, 45),
    Sketcher.Constraint("Equal", 17, 48),
    Sketcher.Constraint("Equal", 19, 50),
    Sketcher.Constraint("Equal", 15, 56),
    Sketcher.Constraint("Equal", 34, 61),
    Sketcher.Constraint("Equal", 26, 65),
    Sketcher.Constraint("Equal", 39, 69),
    Sketcher.Constraint("Equal", 63, 73),
    Sketcher.Constraint("DistanceX", 1, 1, 1, 2, Q("0.21 in")),
    Sketcher.Constraint("DistanceX", 4, 2, 4, 1, Q("0.13 in")),
    Sketcher.Constraint("DistanceX", 8, 1, 8, 2, Q("0.46 in")),
    Sketcher.Constraint("DistanceX", 14, 2, 14, 1, Q("0.45 in")),
    Sketcher.Constraint("DistanceX", 20, 2, 20, 1, Q("0.38 in")),
    Sketcher.Constraint("DistanceY", 0, 2, 0, 1, Q("0.53 in")),
    Sketcher.Constraint("DistanceY", 11, 1, 11, 2, Q("0.49 in")),
    Sketcher.Constraint("DistanceY", 24, 2, 24, 1, Q("0.11 in")),
    Sketcher.Constraint("DistanceY", 29, 1, 29, 2, Q("0.41 in")),
    Sketcher.Constraint("DistanceY", 9, 1, 9, 2, Q("0.208 in")),
    Sketcher.Constraint("DistanceY", 13, 2, 13, 1, Q("0.168 in")),
    Sketcher.Constraint("DistanceX", -1, 1, 0, 2, 6.678978),
    Sketcher.Constraint("DistanceY", 0, 2, -1, 1, 12.217051),
    Sketcher.Constraint("DistanceX", -1, 1, 4, 2, 7.694978),
    Sketcher.Constraint("DistanceY", 4, 2, -1, 1, 11.201051),
    Sketcher.Constraint("DistanceX", -1, 1, 8, 2, 15.187978),
    Sketcher.Constraint("DistanceY", 8, 2, -1, 1, 26.441051),
    Sketcher.Constraint("DistanceX", -1, 1, 20, 2, 4.519978),
    Sketcher.Constraint("DistanceY", 20, 2, -1, 1, 25.425051),
    Sketcher.Constraint("DistanceY", 24, 2, -1, 1, 21.107051),
    Sketcher.Constraint("DistanceX", 28, 2, -1, 1, 0.687022),
    Sketcher.Constraint("DistanceY", 28, 2, -1, 1, 20.141851),
    Sketcher.Constraint("DistanceY", 32, 2, -1, 1, 13.995051),
    Sketcher.Constraint("DistanceX", -1, 1, 36, 2, 16.076978),
    Sketcher.Constraint("DistanceY", 40, 2, -1, 1, 41.427051),
    Sketcher.Constraint("DistanceY", 44, 2, -1, 1, 40.411051),
    Sketcher.Constraint("DistanceY", 48, 2, -1, 1, 50.367851),
    Sketcher.Constraint("DistanceY", 60, 2, -1, 1, 54.635051),
    Sketcher.Constraint("DistanceY", 64, 2, -1, 1, 50.317051),
    Sketcher.Constraint("DistanceY", 68, 2, -1, 1, 49.351851),
    Sketcher.Constraint("DistanceY", 72, 2, -1, 1, 46.507051),
])
sketch5.setExpression("Constraints[209]", "Params.sketch5_width")
sketch5.setExpression("Constraints[210]", "Params.sketch5_width2")
sketch5.setExpression("Constraints[211]", "Params.sketch5_width3")
sketch5.setExpression("Constraints[212]", "Params.sketch5_width4")
sketch5.setExpression("Constraints[213]", "Params.sketch5_width5")
pad3 = body.newObject("PartDesign::Pad", "Pad002")
pad3.Profile = sketch5
pad3.setExpression("Length", "Params.pad3_length")
pad3.Reversed = True

# Sketch on XZ plane
sketch6 = body.newObject("Sketcher::SketchObject", "Sketch005")
sketch6.AttachmentSupport = (doc.getObject("XZ_Plane"), [""])
sketch6.MapMode = "FlatFace"
sketch6.AttachmentOffset = App.Placement(V(0, 0, 0.04 * 25.4), App.Rotation())
sketch6.addGeometry([
    Part.LineSegment(V(-3.354022, 4.292949, 0), V(-3.354022, -56.667051, 0)),
    Part.LineSegment(V(-3.354022, -56.667051, 0), V(-1.830022, -56.667051, 0)),
    Part.LineSegment(V(-1.830022, -56.667051, 0), V(-1.830022, 4.292949, 0)),
    Part.LineSegment(V(-1.830022, 4.292949, 0), V(-3.354022, 4.292949, 0)),
], False)
sketch6.addConstraint([
    Sketcher.Constraint("Coincident", 0, 2, 1, 1),
    Sketcher.Constraint("Coincident", 1, 2, 2, 1),
    Sketcher.Constraint("Coincident", 2, 2, 3, 1),
    Sketcher.Constraint("Coincident", 3, 2, 0, 1),
    Sketcher.Constraint("Vertical", 0),
    Sketcher.Constraint("Horizontal", 1),
    Sketcher.Constraint("Vertical", 2),
    Sketcher.Constraint("Horizontal", 3),
    Sketcher.Constraint("DistanceY", 0, 2, 0, 1, Q("2.4 in")),
    Sketcher.Constraint("DistanceX", 1, 1, 1, 2, Q("0.06 in")),
    Sketcher.Constraint("DistanceX", 0, 2, -1, 1, 3.354022),
    Sketcher.Constraint("DistanceY", 0, 2, -1, 1, 56.667051),
])
sketch6.setExpression("Constraints[8]", "Params.sketch6_height")
sketch6.setExpression("Constraints[9]", "Params.sketch6_width")
pocket3 = body.newObject("PartDesign::Pocket", "Pocket002")
pocket3.Profile = sketch6
pocket3.setExpression("Length", "Params.pocket3_length")

doc.recompute()
